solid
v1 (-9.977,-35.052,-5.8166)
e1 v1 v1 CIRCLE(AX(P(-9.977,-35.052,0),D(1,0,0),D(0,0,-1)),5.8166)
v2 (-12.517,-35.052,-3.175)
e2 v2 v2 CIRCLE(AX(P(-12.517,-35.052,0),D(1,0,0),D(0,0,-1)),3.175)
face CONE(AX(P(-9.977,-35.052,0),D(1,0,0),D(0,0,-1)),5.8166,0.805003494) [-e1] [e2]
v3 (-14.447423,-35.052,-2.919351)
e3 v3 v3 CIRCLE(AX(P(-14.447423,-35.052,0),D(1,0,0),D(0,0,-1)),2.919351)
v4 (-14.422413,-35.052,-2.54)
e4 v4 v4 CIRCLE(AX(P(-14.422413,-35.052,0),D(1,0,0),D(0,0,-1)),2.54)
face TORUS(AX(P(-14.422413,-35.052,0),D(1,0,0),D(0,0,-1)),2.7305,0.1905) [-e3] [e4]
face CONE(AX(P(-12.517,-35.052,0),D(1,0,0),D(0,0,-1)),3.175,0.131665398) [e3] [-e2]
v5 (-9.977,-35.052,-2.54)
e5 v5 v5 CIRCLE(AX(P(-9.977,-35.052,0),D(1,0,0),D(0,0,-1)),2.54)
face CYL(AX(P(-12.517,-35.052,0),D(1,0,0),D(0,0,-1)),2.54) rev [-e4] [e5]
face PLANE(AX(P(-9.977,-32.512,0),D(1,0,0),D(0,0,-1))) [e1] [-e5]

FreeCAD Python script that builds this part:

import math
import FreeCAD as App
import Part
import Sketcher

V = App.Vector
Q = App.Units.Quantity

doc = App.newDocument("Part")
params = doc.addObject("Spreadsheet::Sheet", "Params")
for row, (alias, value) in enumerate([
    ("sketch1_height", "0.129 in"),
    ("revolution_angle", "360 deg"),
], start=1):
    params.set(f"A{row}", alias)
    params.set(f"B{row}", "=" + value)
    params.setAlias(f"B{row}", alias)

body = doc.addObject("PartDesign::Body", "Body")

sketch1 = doc.addObject("Sketcher::SketchObject", "Sketch")
body.addObject(sketch1)
sketch1.AttachmentSupport = (doc.XY_Plane, [""])
sketch1.MapMode = "FlatFace"
sketch1.addGeometry([
    Part.LineSegment(V(-9.977, -29.2354, 0), V(-12.517, -31.877, 0)),
    Part.LineSegment(V(-12.517, -31.877, 0), V(-14.447423, -32.132649, 0)),
    Part.ArcOfCircle(Part.Circle(V(-14.422413, -32.3215, 0), V(0, 0, 1), 0.1905), math.radians(97.543872), math.radians(270)),
    Part.LineSegment(V(-14.422413, -32.512, 0), V(-9.977, -32.512, 0)),
    Part.LineSegment(V(-9.977, -32.512, 0), V(-9.977, -29.2354, 0)),
], False)
sketch1.addGeometry(Part.LineSegment(V(-9.977, -35.052, 0), V(-14.447423, -35.052, 0)), True)
sketch1.addConstraint([
    Sketcher.Constraint("Coincident", 0, 2, 1, 1),
    Sketcher.Constraint("Tangent", 1, 2, 2, 1),
    Sketcher.Constraint("Tangent", 2, 2, 3, 1),
    Sketcher.Constraint("Coincident", 3, 2, 4, 1),
    Sketcher.Constraint("Coincident", 4, 2, 0, 1),
    Sketcher.Constraint("Horizontal", 3),
    Sketcher.Constraint("Vertical", 4),
    Sketcher.Constraint("Horizontal", 5),
    Sketcher.Constraint("Vertical", 4, 2, 5, 1),
    Sketcher.Constraint("Vertical", 1, 2, 5, 2),
    Sketcher.Constraint("Radius", 2, Q("0.0075 in")),
    Sketcher.Constraint("DistanceX", 0, 2, 3, 2, Q("0.1 in")),
    Sketcher.Constraint("DistanceY", 5, 1, 3, 2, Q("0.1 in")),
    Sketcher.Constraint("DistanceY", 4, 1, 4, 2, Q("0.129 in")),
    Sketcher.Constraint("DistanceY", 2, 2, -1, 1, Q("1.28 in")),
    Sketcher.Constraint("DistanceY", 0, 2, -1, 1, Q("1.255 in")),
    Sketcher.Constraint("DistanceX", 0, 2, -1, 1, 12.517),
    Sketcher.Constraint("DistanceX", 3, 1, 3, 2, 4.445413),
])
sketch1.setExpression("Constraints[13]", "Params.sketch1_height")
revolution = doc.addObject("PartDesign::Revolution", "Revolution")
body.addObject(revolution)
revolution.Profile = sketch1
revolution.ReferenceAxis = (sketch1, ["Axis0"])
revolution.setExpression("Angle", "Params.revolution_angle")

doc.recompute()
